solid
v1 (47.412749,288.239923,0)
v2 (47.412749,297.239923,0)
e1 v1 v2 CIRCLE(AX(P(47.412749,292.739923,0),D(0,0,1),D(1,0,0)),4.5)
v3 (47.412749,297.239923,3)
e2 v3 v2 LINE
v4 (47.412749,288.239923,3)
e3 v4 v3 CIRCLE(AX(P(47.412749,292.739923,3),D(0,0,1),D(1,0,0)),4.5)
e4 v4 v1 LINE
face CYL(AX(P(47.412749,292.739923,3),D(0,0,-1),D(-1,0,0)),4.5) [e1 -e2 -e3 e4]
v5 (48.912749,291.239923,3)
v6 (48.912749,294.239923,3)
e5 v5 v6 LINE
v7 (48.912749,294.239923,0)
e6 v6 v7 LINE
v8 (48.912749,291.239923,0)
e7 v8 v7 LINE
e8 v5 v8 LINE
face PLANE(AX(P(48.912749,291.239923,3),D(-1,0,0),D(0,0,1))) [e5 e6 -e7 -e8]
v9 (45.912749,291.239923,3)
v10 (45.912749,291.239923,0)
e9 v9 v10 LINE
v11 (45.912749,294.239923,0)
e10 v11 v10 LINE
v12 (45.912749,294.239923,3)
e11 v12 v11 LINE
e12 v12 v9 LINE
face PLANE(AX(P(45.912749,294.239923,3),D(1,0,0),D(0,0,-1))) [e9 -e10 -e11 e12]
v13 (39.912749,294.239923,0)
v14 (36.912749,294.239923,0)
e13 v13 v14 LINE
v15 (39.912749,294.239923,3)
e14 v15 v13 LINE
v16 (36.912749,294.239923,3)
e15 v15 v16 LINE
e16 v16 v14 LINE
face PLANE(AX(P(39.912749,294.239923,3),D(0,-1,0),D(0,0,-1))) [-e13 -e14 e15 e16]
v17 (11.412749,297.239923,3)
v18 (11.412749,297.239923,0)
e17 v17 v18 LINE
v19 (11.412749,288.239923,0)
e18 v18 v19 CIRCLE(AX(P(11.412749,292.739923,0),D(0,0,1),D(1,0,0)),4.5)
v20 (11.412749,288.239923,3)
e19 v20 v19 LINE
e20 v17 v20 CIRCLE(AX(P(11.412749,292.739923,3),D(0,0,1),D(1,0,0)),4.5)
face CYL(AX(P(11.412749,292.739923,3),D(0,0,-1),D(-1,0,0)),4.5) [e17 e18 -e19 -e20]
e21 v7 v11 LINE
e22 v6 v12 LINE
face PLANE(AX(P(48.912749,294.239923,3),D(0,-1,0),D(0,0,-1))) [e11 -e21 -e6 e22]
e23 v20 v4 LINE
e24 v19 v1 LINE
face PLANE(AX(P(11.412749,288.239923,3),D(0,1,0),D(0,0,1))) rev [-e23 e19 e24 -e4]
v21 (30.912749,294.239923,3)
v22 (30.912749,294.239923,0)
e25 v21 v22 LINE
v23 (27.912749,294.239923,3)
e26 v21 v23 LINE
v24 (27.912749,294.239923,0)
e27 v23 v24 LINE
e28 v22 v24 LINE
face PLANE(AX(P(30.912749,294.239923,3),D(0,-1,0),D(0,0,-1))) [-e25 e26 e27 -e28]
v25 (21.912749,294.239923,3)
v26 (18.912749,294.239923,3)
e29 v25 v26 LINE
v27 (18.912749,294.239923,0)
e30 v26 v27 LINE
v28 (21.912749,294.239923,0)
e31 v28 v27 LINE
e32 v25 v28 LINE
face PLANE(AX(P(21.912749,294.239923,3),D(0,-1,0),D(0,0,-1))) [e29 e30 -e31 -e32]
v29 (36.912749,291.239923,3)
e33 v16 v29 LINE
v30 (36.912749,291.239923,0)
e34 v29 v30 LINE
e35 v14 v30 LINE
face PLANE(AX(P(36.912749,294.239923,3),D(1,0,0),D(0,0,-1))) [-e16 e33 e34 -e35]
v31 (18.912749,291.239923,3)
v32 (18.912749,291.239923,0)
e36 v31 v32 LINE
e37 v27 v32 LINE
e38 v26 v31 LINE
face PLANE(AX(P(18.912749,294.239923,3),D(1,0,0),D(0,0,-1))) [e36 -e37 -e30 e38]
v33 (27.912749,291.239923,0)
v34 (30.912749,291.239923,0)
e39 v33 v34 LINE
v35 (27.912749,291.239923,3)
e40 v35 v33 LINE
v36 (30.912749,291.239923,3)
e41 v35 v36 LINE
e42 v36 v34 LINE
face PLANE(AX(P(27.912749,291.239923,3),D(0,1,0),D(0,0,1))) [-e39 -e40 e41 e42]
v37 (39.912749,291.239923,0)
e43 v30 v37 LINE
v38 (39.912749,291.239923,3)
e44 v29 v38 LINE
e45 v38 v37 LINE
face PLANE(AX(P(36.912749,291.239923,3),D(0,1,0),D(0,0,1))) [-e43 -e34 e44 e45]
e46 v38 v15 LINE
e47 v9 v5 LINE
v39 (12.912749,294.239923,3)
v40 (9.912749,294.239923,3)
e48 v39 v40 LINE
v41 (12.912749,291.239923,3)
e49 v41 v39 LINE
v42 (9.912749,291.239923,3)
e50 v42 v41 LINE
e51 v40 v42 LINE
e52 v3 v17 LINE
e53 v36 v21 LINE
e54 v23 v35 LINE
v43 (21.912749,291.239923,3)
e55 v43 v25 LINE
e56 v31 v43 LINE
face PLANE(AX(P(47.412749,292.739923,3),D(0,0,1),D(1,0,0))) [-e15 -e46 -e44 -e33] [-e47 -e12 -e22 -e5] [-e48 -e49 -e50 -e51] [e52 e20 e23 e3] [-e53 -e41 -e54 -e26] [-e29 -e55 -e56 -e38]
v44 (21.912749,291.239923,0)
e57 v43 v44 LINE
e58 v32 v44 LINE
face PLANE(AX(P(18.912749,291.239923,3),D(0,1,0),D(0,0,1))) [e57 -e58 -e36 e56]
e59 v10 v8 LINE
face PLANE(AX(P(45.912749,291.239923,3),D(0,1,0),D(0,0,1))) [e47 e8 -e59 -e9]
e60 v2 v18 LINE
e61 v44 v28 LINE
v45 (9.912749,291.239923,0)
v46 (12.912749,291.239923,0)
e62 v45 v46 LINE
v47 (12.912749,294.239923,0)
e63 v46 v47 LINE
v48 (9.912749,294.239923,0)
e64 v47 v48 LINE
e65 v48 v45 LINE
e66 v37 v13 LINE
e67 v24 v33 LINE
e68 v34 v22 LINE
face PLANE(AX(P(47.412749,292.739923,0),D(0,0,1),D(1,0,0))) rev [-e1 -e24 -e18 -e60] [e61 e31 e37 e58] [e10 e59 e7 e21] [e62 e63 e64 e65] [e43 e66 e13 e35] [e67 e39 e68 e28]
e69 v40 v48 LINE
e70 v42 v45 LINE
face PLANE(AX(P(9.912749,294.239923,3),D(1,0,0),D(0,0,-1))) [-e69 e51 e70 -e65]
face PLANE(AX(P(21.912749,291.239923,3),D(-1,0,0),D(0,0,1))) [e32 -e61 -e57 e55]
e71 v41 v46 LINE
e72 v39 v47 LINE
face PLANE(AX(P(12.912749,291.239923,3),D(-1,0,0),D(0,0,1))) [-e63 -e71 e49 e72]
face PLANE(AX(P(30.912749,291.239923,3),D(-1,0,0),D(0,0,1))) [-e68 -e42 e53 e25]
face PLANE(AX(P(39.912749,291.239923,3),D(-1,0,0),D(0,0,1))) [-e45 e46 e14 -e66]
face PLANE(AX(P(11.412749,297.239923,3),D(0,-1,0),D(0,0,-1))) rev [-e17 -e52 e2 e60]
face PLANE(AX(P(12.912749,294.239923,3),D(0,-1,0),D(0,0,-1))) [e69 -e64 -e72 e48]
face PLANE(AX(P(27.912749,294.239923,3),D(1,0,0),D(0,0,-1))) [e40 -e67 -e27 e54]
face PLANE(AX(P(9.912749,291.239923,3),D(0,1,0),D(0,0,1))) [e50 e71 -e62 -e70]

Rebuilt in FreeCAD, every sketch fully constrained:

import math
import FreeCAD as App
import Part
import Sketcher
from FreeCAD import Vector

doc = App.newDocument("Part")
body = doc.addObject("PartDesign::Body", "Body")

sketch1 = body.newObject("Sketcher::SketchObject", "Sketch")
sketch1.AttachmentSupport = (doc.getObject("XY_Plane"), [""])
sketch1.MapMode = "FlatFace"
sketch1.addGeometry([
    Part.LineSegment(Vector(47.4, 297.2, 0), Vector(11.4, 297.2, 0)),
    Part.ArcOfCircle(Part.Circle(Vector(11.4, 292.7, 0), Vector(0, 0, 1), 4.5), math.radians(90), math.radians(270)),
    Part.LineSegment(Vector(11.4, 288.2, 0), Vector(47.4, 288.2, 0)),
    Part.ArcOfCircle(Part.Circle(Vector(47.4, 292.7, 0), Vector(0, 0, 1), 4.5), math.radians(-90), math.radians(90)),
    Part.LineSegment(Vector(45.9, 291.2, 0), Vector(45.9, 294.2, 0)),
    Part.LineSegment(Vector(45.9, 294.2, 0), Vector(48.9, 294.2, 0)),
    Part.LineSegment(Vector(48.9, 294.2, 0), Vector(48.9, 291.2, 0)),
    Part.LineSegment(Vector(48.9, 291.2, 0), Vector(45.9, 291.2, 0)),
    Part.LineSegment(Vector(36.9, 291.2, 0), Vector(36.9, 294.2, 0)),
    Part.LineSegment(Vector(36.9, 294.2, 0), Vector(39.9, 294.2, 0)),
    Part.LineSegment(Vector(39.9, 294.2, 0), Vector(39.9, 291.2, 0)),
    Part.LineSegment(Vector(39.9, 291.2, 0), Vector(36.9, 291.2, 0)),
    Part.LineSegment(Vector(27.9, 291.2, 0), Vector(27.9, 294.2, 0)),
    Part.LineSegment(Vector(27.9, 294.2, 0), Vector(30.9, 294.2, 0)),
    Part.LineSegment(Vector(30.9, 294.2, 0), Vector(30.9, 291.2, 0)),
    Part.LineSegment(Vector(30.9, 291.2, 0), Vector(27.9, 291.2, 0)),
    Part.LineSegment(Vector(18.9, 291.2, 0), Vector(18.9, 294.2, 0)),
    Part.LineSegment(Vector(18.9, 294.2, 0), Vector(21.9, 294.2, 0)),
    Part.LineSegment(Vector(21.9, 294.2, 0), Vector(21.9, 291.2, 0)),
    Part.LineSegment(Vector(21.9, 291.2, 0), Vector(18.9, 291.2, 0)),
    Part.LineSegment(Vector(9.9, 291.2, 0), Vector(9.9, 294.2, 0)),
    Part.LineSegment(Vector(9.9, 294.2, 0), Vector(12.9, 294.2, 0)),
    Part.LineSegment(Vector(12.9, 294.2, 0), Vector(12.9, 291.2, 0)),
    Part.LineSegment(Vector(12.9, 291.2, 0), Vector(9.9, 291.2, 0)),
], False)
sketch1.addConstraint([
    Sketcher.Constraint("Tangent", 0, 2, 1, 1),
    Sketcher.Constraint("Tangent", 1, 2, 2, 1),
    Sketcher.Constraint("Tangent", 2, 2, 3, 1),
    Sketcher.Constraint("Tangent", 3, 2, 0, 1),
    Sketcher.Constraint("Coincident", 4, 2, 5, 1),
    Sketcher.Constraint("Coincident", 5, 2, 6, 1),
    Sketcher.Constraint("Coincident", 6, 2, 7, 1),
    Sketcher.Constraint("Coincident", 7, 2, 4, 1),
    Sketcher.Constraint("Coincident", 8, 2, 9, 1),
    Sketcher.Constraint("Coincident", 9, 2, 10, 1),
    Sketcher.Constraint("Coincident", 10, 2, 11, 1),
    Sketcher.Constraint("Coincident", 11, 2, 8, 1),
    Sketcher.Constraint("Coincident", 12, 2, 13, 1),
    Sketcher.Constraint("Coincident", 13, 2, 14, 1),
    Sketcher.Constraint("Coincident", 14, 2, 15, 1),
    Sketcher.Constraint("Coincident", 15, 2, 12, 1),
    Sketcher.Constraint("Coincident", 16, 2, 17, 1),
    Sketcher.Constraint("Coincident", 17, 2, 18, 1),
    Sketcher.Constraint("Coincident", 18, 2, 19, 1),
    Sketcher.Constraint("Coincident", 19, 2, 16, 1),
    Sketcher.Constraint("Coincident", 20, 2, 21, 1),
    Sketcher.Constraint("Coincident", 21, 2, 22, 1),
    Sketcher.Constraint("Coincident", 22, 2, 23, 1),
    Sketcher.Constraint("Coincident", 23, 2, 20, 1),
    Sketcher.Constraint("Horizontal", 0),
    Sketcher.Constraint("Horizontal", 2),
    Sketcher.Constraint("Vertical", 4),
    Sketcher.Constraint("Horizontal", 5),
    Sketcher.Constraint("Vertical", 6),
    Sketcher.Constraint("Horizontal", 7),
    Sketcher.Constraint("Vertical", 8),
    Sketcher.Constraint("Horizontal", 9),
    Sketcher.Constraint("Vertical", 10),
    Sketcher.Constraint("Horizontal", 11),
    Sketcher.Constraint("Vertical", 12),
    Sketcher.Constraint("Horizontal", 13),
    Sketcher.Constraint("Vertical", 14),
    Sketcher.Constraint("Horizontal", 15),
    Sketcher.Constraint("Vertical", 16),
    Sketcher.Constraint("Horizontal", 17),
    Sketcher.Constraint("Vertical", 18),
    Sketcher.Constraint("Horizontal", 19),
    Sketcher.Constraint("Vertical", 20),
    Sketcher.Constraint("Horizontal", 21),
    Sketcher.Constraint("Vertical", 22),
    Sketcher.Constraint("Horizontal", 23),
    Sketcher.Constraint("Horizontal", 5, 2, 8, 2),
    Sketcher.Constraint("Horizontal", 7, 2, 10, 2),
    Sketcher.Constraint("Horizontal", 9, 2, 12, 2),
    Sketcher.Constraint("Horizontal", 11, 2, 14, 2),
    Sketcher.Constraint("Horizontal", 13, 2, 16, 2),
    Sketcher.Constraint("Horizontal", 15, 2, 18, 2),
    Sketcher.Constraint("Horizontal", 17, 2, 20, 2),
    Sketcher.Constraint("Horizontal", 19, 2, 22, 2),
    Sketcher.Constraint("Equal", 7, 9),
    Sketcher.Constraint("Equal", 11, 13),
    Sketcher.Constraint("Equal", 15, 17),
    Sketcher.Constraint("Equal", 19, 21),
    Sketcher.Constraint("Equal", 23, 4),
    Sketcher.Constraint("Radius", 1, 4.5),
    Sketcher.Constraint("DistanceX", 0, 2, 0, 1, 36.0),
    Sketcher.Constraint("DistanceX", 5, 1, 5, 2, 3.0),
    Sketcher.Constraint("DistanceY", 4, 2, 3, 2, 3.0),
    Sketcher.Constraint("DistanceX", 8, 2, 4, 2, 9.0),
    Sketcher.Constraint("DistanceX", 12, 2, 8, 2, 9.0),
    Sketcher.Constraint("DistanceX", 16, 2, 12, 2, 9.0),
    Sketcher.Constraint("DistanceX", 20, 2, 16, 2, 9.0),
    Sketcher.Constraint("DistanceX", 4, 2, 3, 3, 1.5),
    Sketcher.Constraint("DistanceX", -1, 1, 1, 3, 11.412749),
    Sketcher.Constraint("DistanceY", -1, 1, 1, 3, 292.739923),
])
pad1 = body.newObject("PartDesign::Pad", "Pad")
pad1.Profile = sketch1
pad1.Length = 3

doc.recompute()
